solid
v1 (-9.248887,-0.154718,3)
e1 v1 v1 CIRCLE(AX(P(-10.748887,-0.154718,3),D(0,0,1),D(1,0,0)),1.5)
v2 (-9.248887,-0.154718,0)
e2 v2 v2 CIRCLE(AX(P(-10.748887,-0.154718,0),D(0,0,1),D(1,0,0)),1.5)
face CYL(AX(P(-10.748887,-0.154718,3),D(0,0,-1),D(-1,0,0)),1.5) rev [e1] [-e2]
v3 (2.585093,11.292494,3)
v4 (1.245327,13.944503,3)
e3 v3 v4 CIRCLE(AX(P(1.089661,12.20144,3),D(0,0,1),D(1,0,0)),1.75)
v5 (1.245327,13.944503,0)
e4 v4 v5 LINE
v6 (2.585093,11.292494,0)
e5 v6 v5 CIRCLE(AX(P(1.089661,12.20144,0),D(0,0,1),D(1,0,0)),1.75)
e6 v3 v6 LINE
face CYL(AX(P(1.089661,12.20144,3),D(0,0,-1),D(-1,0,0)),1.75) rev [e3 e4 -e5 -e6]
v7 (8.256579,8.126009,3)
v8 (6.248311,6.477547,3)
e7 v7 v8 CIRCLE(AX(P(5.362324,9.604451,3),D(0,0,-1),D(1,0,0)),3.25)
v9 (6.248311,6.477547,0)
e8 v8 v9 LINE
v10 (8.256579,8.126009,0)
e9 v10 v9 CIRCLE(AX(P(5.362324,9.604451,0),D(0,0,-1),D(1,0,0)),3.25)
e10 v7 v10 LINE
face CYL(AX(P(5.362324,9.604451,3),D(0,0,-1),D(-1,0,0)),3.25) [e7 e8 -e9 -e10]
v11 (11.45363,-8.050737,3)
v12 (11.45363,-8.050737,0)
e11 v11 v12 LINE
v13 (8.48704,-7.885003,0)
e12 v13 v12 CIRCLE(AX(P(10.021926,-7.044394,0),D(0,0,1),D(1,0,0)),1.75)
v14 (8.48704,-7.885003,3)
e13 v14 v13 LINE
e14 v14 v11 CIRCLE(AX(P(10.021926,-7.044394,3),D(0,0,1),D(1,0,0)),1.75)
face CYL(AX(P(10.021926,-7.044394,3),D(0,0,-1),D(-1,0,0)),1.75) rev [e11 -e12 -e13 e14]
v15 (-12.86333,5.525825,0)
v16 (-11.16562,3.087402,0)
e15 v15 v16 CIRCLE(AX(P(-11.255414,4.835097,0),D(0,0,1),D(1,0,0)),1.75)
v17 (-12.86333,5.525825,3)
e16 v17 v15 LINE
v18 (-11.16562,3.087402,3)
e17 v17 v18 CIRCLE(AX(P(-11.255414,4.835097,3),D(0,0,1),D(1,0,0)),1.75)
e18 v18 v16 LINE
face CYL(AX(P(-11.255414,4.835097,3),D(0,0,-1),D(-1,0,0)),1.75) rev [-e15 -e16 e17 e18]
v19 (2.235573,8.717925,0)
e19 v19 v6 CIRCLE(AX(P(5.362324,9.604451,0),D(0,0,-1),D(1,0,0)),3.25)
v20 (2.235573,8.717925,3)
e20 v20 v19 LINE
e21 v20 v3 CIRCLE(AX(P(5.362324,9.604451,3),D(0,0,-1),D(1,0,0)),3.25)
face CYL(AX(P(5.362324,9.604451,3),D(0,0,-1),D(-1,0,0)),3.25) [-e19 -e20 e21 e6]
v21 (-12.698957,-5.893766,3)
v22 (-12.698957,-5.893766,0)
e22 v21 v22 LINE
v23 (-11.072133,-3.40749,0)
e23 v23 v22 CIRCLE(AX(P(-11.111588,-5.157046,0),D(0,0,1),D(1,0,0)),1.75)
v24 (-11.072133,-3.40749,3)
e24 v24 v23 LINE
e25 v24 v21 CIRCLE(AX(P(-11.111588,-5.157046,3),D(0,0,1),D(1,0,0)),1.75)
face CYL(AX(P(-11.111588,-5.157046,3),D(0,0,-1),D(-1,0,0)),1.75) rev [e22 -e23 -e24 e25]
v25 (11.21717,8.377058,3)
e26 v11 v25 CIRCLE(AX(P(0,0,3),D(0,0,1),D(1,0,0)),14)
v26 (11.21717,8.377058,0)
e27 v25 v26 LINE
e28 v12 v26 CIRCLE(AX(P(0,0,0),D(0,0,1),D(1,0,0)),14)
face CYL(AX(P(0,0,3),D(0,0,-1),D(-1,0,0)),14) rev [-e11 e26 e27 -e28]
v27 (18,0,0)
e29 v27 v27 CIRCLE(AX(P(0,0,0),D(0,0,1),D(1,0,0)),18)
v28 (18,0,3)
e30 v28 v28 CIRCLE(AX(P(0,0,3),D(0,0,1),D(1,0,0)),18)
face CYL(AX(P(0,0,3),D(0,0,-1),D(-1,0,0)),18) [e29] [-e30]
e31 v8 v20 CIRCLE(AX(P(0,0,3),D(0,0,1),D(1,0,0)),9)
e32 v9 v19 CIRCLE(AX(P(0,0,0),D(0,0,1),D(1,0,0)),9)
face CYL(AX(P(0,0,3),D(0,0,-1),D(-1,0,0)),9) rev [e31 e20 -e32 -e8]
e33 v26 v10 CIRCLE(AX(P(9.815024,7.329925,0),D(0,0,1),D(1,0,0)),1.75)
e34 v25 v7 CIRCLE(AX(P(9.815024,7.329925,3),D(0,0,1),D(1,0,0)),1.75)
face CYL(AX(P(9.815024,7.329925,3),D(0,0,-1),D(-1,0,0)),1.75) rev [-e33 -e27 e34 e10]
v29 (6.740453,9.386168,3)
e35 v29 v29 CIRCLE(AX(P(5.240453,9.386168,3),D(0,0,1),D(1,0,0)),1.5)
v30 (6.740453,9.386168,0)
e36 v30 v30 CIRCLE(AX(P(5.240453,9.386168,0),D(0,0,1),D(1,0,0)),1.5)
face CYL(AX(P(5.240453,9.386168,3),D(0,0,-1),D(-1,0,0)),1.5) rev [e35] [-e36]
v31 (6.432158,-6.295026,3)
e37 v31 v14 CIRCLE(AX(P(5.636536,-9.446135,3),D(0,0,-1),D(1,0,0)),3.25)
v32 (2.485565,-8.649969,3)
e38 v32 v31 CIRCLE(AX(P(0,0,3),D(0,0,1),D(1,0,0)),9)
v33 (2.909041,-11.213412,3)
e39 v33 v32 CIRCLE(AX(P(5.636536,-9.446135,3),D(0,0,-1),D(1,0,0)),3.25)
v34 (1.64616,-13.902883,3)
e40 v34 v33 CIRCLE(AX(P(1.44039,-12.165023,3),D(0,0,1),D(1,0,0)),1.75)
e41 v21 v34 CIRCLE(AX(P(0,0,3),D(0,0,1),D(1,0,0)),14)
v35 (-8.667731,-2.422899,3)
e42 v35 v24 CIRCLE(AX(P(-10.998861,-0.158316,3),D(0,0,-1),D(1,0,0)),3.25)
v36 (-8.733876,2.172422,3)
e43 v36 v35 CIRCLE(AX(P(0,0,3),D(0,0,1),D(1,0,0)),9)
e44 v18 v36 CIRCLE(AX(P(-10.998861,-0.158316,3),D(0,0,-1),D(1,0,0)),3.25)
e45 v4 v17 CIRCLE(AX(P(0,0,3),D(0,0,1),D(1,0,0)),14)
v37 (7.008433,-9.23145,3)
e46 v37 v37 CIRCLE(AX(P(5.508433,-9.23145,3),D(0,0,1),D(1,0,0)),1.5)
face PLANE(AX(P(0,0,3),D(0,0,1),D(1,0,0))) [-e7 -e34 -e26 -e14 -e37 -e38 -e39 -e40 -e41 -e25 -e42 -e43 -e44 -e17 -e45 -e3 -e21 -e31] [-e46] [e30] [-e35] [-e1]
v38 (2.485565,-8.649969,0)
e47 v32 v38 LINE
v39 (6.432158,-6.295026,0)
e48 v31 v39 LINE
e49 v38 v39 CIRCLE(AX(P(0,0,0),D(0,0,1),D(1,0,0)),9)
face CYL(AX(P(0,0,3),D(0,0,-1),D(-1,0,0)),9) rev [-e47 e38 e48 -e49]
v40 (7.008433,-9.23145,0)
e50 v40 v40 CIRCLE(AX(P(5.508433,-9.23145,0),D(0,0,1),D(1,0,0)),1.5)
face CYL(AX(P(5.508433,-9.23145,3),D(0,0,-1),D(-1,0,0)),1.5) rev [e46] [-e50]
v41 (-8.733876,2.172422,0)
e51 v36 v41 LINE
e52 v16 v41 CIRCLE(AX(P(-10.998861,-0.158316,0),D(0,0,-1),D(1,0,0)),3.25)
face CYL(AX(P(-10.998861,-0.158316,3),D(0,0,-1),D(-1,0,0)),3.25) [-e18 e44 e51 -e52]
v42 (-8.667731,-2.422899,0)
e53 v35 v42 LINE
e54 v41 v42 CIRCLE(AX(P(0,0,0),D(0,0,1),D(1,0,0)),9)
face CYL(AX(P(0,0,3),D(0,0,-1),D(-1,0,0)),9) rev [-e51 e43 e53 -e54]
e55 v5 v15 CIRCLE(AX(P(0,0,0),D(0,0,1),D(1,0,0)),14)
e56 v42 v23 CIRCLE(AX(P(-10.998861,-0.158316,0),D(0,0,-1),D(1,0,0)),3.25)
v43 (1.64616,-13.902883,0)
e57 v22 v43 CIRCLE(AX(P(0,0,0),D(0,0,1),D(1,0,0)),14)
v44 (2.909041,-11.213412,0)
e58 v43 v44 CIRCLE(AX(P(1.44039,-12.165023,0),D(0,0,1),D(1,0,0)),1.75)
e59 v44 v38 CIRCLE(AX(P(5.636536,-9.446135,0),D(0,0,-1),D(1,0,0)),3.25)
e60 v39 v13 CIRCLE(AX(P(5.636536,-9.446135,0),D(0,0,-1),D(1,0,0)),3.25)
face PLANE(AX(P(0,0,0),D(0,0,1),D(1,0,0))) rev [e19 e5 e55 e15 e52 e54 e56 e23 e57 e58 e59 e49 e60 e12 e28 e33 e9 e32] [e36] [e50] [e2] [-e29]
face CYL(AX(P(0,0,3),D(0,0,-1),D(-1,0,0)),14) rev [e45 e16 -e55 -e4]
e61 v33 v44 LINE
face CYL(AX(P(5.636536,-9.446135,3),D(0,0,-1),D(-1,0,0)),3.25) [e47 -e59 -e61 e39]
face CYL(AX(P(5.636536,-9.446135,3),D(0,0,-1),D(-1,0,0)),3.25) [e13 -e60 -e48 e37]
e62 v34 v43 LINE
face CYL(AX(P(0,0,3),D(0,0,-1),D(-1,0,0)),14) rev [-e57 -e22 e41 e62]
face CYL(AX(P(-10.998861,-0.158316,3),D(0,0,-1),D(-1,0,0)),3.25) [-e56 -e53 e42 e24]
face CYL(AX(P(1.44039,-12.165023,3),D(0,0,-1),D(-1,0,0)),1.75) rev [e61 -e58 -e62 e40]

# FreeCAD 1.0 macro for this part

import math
import FreeCAD as App
import Part
import Sketcher
Q = App.Units.Quantity

doc = App.newDocument("Part")
body = doc.addObject("PartDesign::Body", "Body")

# Sketch on XY plane
sketch1 = body.newObject("Sketcher::SketchObject", "Sketch")
sketch1.AttachmentSupport = (doc.getObject("XY_Plane"), [""])
sketch1.MapMode = "FlatFace"
sketch1.addGeometry([
    Part.Circle(App.Vector(0, 0, 0), App.Vector(0, 0, 1), 18),  # 0
    Part.Circle(App.Vector(-10.7, -0.2, 0), App.Vector(0, 0, 1), 1.5),  # 1
    Part.Circle(App.Vector(5.5, -9.2, 0), App.Vector(0, 0, 1), 1.5),  # 2
    Part.ArcOfCircle(Part.Circle(App.Vector(0, 0, 0), App.Vector(0, 0, 1), 9), math.radians(-74), math.radians(-44)),  # 3
    Part.ArcOfCircle(Part.Circle(App.Vector(5.6, -9.4, 0), App.Vector(0, 0, 1), 3.3), math.radians(166), math.radians(213)),  # 4
    Part.ArcOfCircle(Part.Circle(App.Vector(1.4, -12.2, 0), App.Vector(0, 0, 1), 1.8), math.radians(-83), math.radians(33)),  # 5
    Part.ArcOfCircle(Part.Circle(App.Vector(0, 0, 0), App.Vector(0, 0, 1), 14), math.radians(-155), math.radians(-83)),  # 6
    Part.ArcOfCircle(Part.Circle(App.Vector(-11.1, -5.2, 0), App.Vector(0, 0, 1), 1.7), math.radians(89), math.radians(205)),  # 7
    Part.ArcOfCircle(Part.Circle(App.Vector(-11, -0.2, 0), App.Vector(0, 0, 1), 3.3), math.radians(-91), math.radians(-44)),  # 8
    Part.ArcOfCircle(Part.Circle(App.Vector(0, 0, 0), App.Vector(0, 0, 1), 9), math.radians(166), math.radians(196)),  # 9
    Part.ArcOfCircle(Part.Circle(App.Vector(-11, -0.2, 0), App.Vector(0, 0, 1), 3.3), math.radians(46), math.radians(93)),  # 10
    Part.ArcOfCircle(Part.Circle(App.Vector(-11.3, 4.8, 0), App.Vector(0, 0, 1), 1.8), math.radians(157), math.radians(273)),  # 11
    Part.ArcOfCircle(Part.Circle(App.Vector(0, 0, 0), App.Vector(0, 0, 1), 14), math.radians(85), math.radians(157)),  # 12
    Part.ArcOfCircle(Part.Circle(App.Vector(1.1, 12.2, 0), App.Vector(0, 0, 1), 1.7), math.radians(-31), math.radians(85)),  # 13
    Part.ArcOfCircle(Part.Circle(App.Vector(5.4, 9.6, 0), App.Vector(0, 0, 1), 3.2), math.radians(149), math.radians(196)),  # 14
    Part.ArcOfCircle(Part.Circle(App.Vector(0, 0, 0), App.Vector(0, 0, 1), 9), math.radians(46), math.radians(76)),  # 15
    Part.ArcOfCircle(Part.Circle(App.Vector(5.4, 9.6, 0), App.Vector(0, 0, 1), 3.2), math.radians(-74), math.radians(-27)),  # 16
    Part.ArcOfCircle(Part.Circle(App.Vector(9.8, 7.3, 0), App.Vector(0, 0, 1), 1.8), math.radians(37), math.radians(153)),  # 17
    Part.ArcOfCircle(Part.Circle(App.Vector(0, 0, 0), App.Vector(0, 0, 1), 14), math.radians(-35), math.radians(37)),  # 18
    Part.ArcOfCircle(Part.Circle(App.Vector(10, -7, 0), App.Vector(0, 0, 1), 1.7), math.radians(-151), math.radians(-35)),  # 19
    Part.ArcOfCircle(Part.Circle(App.Vector(5.6, -9.4, 0), App.Vector(0, 0, 1), 3.2), math.radians(29), math.radians(76)),  # 20
    Part.Circle(App.Vector(5.2, 9.4, 0), App.Vector(0, 0, 1), 1.5),  # 21
], False)
sketch1.addConstraint([
    Sketcher.Constraint("Coincident", 3, 1, 4, 1),
    Sketcher.Constraint("Tangent", 4, 2, 5, 2),
    Sketcher.Constraint("Tangent", 5, 1, 6, 2),
    Sketcher.Constraint("Tangent", 6, 1, 7, 2),
    Sketcher.Constraint("Tangent", 7, 1, 8, 1),
    Sketcher.Constraint("Coincident", 8, 2, 9, 2),
    Sketcher.Constraint("Coincident", 9, 1, 10, 1),
    Sketcher.Constraint("Tangent", 10, 2, 11, 2),
    Sketcher.Constraint("Tangent", 11, 1, 12, 2),
    Sketcher.Constraint("Tangent", 12, 1, 13, 2),
    Sketcher.Constraint("Tangent", 13, 1, 14, 1),
    Sketcher.Constraint("Coincident", 14, 2, 15, 2),
    Sketcher.Constraint("Coincident", 15, 1, 16, 1),
    Sketcher.Constraint("Tangent", 16, 2, 17, 2),
    Sketcher.Constraint("Tangent", 17, 1, 18, 2),
    Sketcher.Constraint("Tangent", 18, 1, 19, 2),
    Sketcher.Constraint("Tangent", 19, 1, 20, 1),
    Sketcher.Constraint("Coincident", 20, 2, 3, 2),
    Sketcher.Constraint("Coincident", 0, 3, -1, 1),
    Sketcher.Constraint("Coincident", 3, 3, -1, 1),
    Sketcher.Constraint("Coincident", 6, 3, -1, 1),
    Sketcher.Constraint("Coincident", 9, 3, -1, 1),
    Sketcher.Constraint("Coincident", 12, 3, -1, 1),
    Sketcher.Constraint("Coincident", 15, 3, -1, 1),
    Sketcher.Constraint("Coincident", 18, 3, -1, 1),
    Sketcher.Constraint("Coincident", 10, 3, 8, 3),
    Sketcher.Constraint("Coincident", 16, 3, 14, 3),
    Sketcher.Constraint("Coincident", 20, 3, 4, 3),
    Sketcher.Constraint("Equal", 1, 2),
    Sketcher.Constraint("Equal", 5, 7),
    Sketcher.Constraint("Equal", 4, 8),
    Sketcher.Constraint("Equal", 3, 9),
    Sketcher.Constraint("Equal", 8, 10),
    Sketcher.Constraint("Equal", 7, 11),
    Sketcher.Constraint("Equal", 6, 12),
    Sketcher.Constraint("Equal", 11, 13),
    Sketcher.Constraint("Equal", 10, 14),
    Sketcher.Constraint("Equal", 9, 15),
    Sketcher.Constraint("Equal", 14, 16),
    Sketcher.Constraint("Equal", 13, 17),
    Sketcher.Constraint("Equal", 12, 18),
    Sketcher.Constraint("Equal", 17, 19),
    Sketcher.Constraint("Equal", 16, 20),
    Sketcher.Constraint("Equal", 2, 21),
    Sketcher.Constraint("Diameter", 0, Q("36 mm")),
    Sketcher.Constraint("Diameter", 1, Q("3 mm")),
    Sketcher.Constraint("Radius", 3, Q("9 mm")),
    Sketcher.Constraint("Radius", 6, Q("14 mm")),
    Sketcher.Constraint("Radius", 4, Q("3.25 mm")),
    Sketcher.Constraint("Radius", 5, Q("1.75 mm")),
    Sketcher.Constraint("DistanceY", 8, 2, -1, 1, Q("2.422899 mm")),
    Sketcher.Constraint("DistanceX", 7, 3, 1, 3, Q("0.362701 mm")),
    Sketcher.Constraint("DistanceY", 8, 3, 1, 3, Q("0.003598 mm")),
    Sketcher.Constraint("DistanceX", 16, 3, 17, 3, Q("4.4527 mm")),
    Sketcher.Constraint("DistanceY", 1, 3, -1, 1, Q("0.154718 mm")),
    Sketcher.Constraint("DistanceY", 2, 3, -1, 1, Q("9.23145 mm")),
    Sketcher.Constraint("DistanceX", -1, 1, 5, 3, Q("1.44039 mm")),
    Sketcher.Constraint("DistanceX", -1, 1, 13, 3, Q("1.089661 mm")),
    Sketcher.Constraint("DistanceY", 3, 1, -1, 1, Q("8.649969 mm")),
    Sketcher.Constraint("DistanceX", 1, 3, 2, 3, Q("16.25732 mm")),
    Sketcher.Constraint("DistanceX", 21, 3, 16, 3, Q("0.121871 mm")),
    Sketcher.Constraint("DistanceY", 15, 1, 21, 3, Q("2.908621 mm")),
])
pad1 = body.newObject("PartDesign::Pad", "Pad")
pad1.Profile = sketch1
pad1.Length = 3

doc.recompute()
